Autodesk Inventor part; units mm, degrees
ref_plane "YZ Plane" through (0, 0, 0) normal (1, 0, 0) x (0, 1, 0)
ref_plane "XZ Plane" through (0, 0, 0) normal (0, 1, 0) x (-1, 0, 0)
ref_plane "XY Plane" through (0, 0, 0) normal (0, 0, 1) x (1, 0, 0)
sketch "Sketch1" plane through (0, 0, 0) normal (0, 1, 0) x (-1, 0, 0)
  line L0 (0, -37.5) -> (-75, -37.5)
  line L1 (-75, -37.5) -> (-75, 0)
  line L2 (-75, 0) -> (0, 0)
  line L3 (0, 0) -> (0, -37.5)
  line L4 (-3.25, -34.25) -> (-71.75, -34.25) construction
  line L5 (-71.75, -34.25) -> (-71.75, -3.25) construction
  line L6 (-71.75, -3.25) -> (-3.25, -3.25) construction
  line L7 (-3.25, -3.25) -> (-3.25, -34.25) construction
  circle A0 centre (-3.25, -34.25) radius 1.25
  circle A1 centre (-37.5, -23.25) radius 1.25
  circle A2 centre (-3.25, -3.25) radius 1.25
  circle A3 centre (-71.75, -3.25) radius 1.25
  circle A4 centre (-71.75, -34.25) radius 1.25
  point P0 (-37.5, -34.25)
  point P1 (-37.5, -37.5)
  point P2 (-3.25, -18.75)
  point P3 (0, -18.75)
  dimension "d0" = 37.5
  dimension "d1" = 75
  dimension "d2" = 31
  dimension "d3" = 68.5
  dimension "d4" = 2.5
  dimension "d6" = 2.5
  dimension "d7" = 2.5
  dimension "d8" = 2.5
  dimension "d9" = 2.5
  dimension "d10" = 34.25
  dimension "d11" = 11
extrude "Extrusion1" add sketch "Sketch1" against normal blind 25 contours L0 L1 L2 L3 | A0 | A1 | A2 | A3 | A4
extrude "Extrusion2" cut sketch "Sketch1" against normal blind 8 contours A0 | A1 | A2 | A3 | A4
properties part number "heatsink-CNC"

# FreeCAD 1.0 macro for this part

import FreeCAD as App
import Part
import Sketcher
from FreeCAD import Vector
Q = App.Units.Quantity


def add_polygon(sketch, points):
    """Adds a closed chain of lines whose ends are joined by coincident constraints."""
    first, n = sketch.GeometryCount, len(points)
    for a, b in zip(points, points[1:] + points[:1]):
        sketch.addGeometry(Part.LineSegment(App.Vector(*a, 0), App.Vector(*b, 0)), False)
    for i in range(n):
        sketch.addConstraint(Sketcher.Constraint("Coincident", first + i, 2, first + (i + 1) % n, 1))

doc = App.newDocument("Part")
params = doc.addObject("Spreadsheet::Sheet", "Params")
for row, (alias, value) in enumerate([
    ("sketch1_width", "75 mm"),
    ("sketch1_height", "37.5 mm"),
    ("pad1_length", "25 mm"),
    ("sketch2_diameter", "2.5 mm"),
    ("pocket1_length", "8 mm"),
], start=1):
    params.set(f"A{row}", alias)
    params.set(f"B{row}", "=" + value)
    params.setAlias(f"B{row}", alias)

body = doc.addObject("PartDesign::Body", "Body")

# Sketch on XZ plane
sketch1 = doc.addObject("Sketcher::SketchObject", "Sketch")
body.addObject(sketch1)
sketch1.AttachmentSupport = (doc.XZ_Plane, [""])
sketch1.MapMode = "FlatFace"
add_polygon(sketch1, [(75, -38), (0, -38), (0, 0), (75, 0)])  # lines 0-3
sketch1.addConstraint([
    Sketcher.Constraint("Horizontal", 0),
    Sketcher.Constraint("Vertical", 1),
    Sketcher.Constraint("Horizontal", 2),
    Sketcher.Constraint("Vertical", 3),
    Sketcher.Constraint("Coincident", 1, 2, -1, 1),
    Sketcher.Constraint("DistanceX", 0, 2, 0, 1, Q("75 mm")),
    Sketcher.Constraint("DistanceY", 1, 1, 1, 2, Q("37.5 mm")),
])
sketch1.setExpression("Constraints[9]", "Params.sketch1_width")
sketch1.setExpression("Constraints[10]", "Params.sketch1_height")
pad1 = doc.addObject("PartDesign::Pad", "Pad")
body.addObject(pad1)
pad1.Profile = sketch1
pad1.setExpression("Length", "Params.pad1_length")

# Sketch on XZ plane
sketch2 = doc.addObject("Sketcher::SketchObject", "Sketch001")
body.addObject(sketch2)
sketch2.AttachmentSupport = (doc.XZ_Plane, [""])
sketch2.MapMode = "FlatFace"
sketch2.addGeometry([
    Part.Circle(Vector(3.2, -34.2, 0), Vector(0, 0, 1), 1.2),  # 0
    Part.Circle(Vector(37.5, -23.2, 0), Vector(0, 0, 1), 1.2),  # 1
    Part.Circle(Vector(3.2, -3.2, 0), Vector(0, 0, 1), 1.2),  # 2
    Part.Circle(Vector(71.8, -3.2, 0), Vector(0, 0, 1), 1.2),  # 3
    Part.Circle(Vector(71.8, -34.2, 0), Vector(0, 0, 1), 1.2),  # 4
], False)
sketch2.addConstraint([
    Sketcher.Constraint("Equal", 0, 1),
    Sketcher.Constraint("Equal", 1, 2),
    Sketcher.Constraint("Equal", 2, 3),
    Sketcher.Constraint("Equal", 3, 4),
    Sketcher.Constraint("Horizontal", 2, 3, 3, 3),
    Sketcher.Constraint("Horizontal", 0, 3, 4, 3),
    Sketcher.Constraint("Vertical", 0, 3, 2, 3),
    Sketcher.Constraint("Vertical", 3, 3, 4, 3),
    Sketcher.Constraint("Diameter", 0, Q("2.5 mm")),
    Sketcher.Constraint("DistanceY", 0, 3, 1, 3, Q("11 mm")),
    Sketcher.Constraint("DistanceY", 0, 3, 2, 3, Q("31 mm")),
    Sketcher.Constraint("DistanceX", -1, 1, 1, 3, Q("37.5 mm")),
    Sketcher.Constraint("DistanceX", 2, 3, 3, 3, Q("68.5 mm")),
    Sketcher.Constraint("DistanceY", 0, 3, -1, 1, Q("34.25 mm")),
    Sketcher.Constraint("DistanceX", 0, 3, 1, 3, Q("34.25 mm")),
])
sketch2.setExpression("Constraints[8]", "Params.sketch2_diameter")
pocket1 = doc.addObject("PartDesign::Pocket", "Pocket")
body.addObject(pocket1)
pocket1.Profile = sketch2
pocket1.setExpression("Length", "Params.pocket1_length")
pocket1.Reversed = True

doc.recompute()
